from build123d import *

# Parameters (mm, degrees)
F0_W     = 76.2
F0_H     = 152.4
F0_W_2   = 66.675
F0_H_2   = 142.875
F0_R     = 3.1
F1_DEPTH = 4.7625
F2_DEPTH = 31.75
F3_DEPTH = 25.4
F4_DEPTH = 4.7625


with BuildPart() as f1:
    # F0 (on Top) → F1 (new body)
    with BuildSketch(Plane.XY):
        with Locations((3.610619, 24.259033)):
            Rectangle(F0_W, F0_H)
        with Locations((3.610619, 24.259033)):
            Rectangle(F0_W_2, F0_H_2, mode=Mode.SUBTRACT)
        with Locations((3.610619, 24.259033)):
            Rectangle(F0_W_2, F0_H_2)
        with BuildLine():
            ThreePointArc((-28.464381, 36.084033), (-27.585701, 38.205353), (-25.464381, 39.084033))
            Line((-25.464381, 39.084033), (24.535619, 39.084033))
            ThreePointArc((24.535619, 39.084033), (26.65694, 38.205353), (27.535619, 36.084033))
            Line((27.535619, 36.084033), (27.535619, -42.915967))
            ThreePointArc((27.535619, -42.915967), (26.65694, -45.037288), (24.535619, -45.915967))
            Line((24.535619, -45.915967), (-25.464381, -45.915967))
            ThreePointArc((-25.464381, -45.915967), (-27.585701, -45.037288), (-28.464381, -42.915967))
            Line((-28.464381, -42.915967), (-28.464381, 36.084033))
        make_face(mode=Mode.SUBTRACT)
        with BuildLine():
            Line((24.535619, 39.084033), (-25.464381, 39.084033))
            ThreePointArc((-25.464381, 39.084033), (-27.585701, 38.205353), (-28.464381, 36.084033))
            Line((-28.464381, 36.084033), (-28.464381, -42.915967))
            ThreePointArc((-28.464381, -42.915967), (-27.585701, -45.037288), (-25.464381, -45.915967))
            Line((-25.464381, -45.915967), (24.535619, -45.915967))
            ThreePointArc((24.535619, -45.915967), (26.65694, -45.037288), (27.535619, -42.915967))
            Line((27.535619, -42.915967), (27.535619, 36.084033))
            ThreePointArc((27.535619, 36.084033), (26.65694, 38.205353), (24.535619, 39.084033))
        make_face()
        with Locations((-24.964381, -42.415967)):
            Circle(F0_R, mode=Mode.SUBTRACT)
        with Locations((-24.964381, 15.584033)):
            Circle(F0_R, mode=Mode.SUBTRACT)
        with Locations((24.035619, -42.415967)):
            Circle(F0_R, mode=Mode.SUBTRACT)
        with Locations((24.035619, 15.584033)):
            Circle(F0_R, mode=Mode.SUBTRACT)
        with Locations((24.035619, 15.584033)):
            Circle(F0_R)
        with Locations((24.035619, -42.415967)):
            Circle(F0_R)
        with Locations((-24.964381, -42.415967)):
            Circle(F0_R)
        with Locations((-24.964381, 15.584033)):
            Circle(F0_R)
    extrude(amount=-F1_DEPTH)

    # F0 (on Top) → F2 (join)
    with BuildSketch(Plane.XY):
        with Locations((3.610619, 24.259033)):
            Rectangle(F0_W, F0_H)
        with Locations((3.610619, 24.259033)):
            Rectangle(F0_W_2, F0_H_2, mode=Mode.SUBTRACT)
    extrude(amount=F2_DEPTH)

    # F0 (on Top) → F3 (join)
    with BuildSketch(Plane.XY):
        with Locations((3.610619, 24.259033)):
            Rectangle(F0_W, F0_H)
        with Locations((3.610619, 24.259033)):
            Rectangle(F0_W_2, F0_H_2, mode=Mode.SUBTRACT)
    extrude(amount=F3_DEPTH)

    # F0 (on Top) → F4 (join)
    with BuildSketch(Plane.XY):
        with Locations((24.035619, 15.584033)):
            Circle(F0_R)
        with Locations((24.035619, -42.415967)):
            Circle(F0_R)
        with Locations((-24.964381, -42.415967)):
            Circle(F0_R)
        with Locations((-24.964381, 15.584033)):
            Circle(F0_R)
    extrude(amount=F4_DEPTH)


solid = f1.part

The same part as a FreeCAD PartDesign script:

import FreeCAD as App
import Part
import Sketcher
from FreeCAD import Vector
Q = App.Units.Quantity


def add_polygon(sketch, points):
    """Adds a closed chain of lines whose ends are joined by coincident constraints."""
    first, n = sketch.GeometryCount, len(points)
    for a, b in zip(points, points[1:] + points[:1]):
        sketch.addGeometry(Part.LineSegment(App.Vector(*a, 0), App.Vector(*b, 0)), False)
    for i in range(n):
        sketch.addConstraint(Sketcher.Constraint("Coincident", first + i, 2, first + (i + 1) % n, 1))

doc = App.newDocument("Part")
body = doc.addObject("PartDesign::Body", "Body")

# Sketch on XY plane
sketch1 = doc.addObject("Sketcher::SketchObject", "Sketch")
body.addObject(sketch1)
sketch1.AttachmentSupport = (doc.XY_Plane, [""])
sketch1.MapMode = "FlatFace"
add_polygon(sketch1, [(-34, 100), (-34, -52), (42, -52), (42, 100)])  # lines 0-3
sketch1.addConstraint(Sketcher.Constraint("Vertical", 0))
sketch1.addConstraint(Sketcher.Constraint("Horizontal", 1))
sketch1.addConstraint(Sketcher.Constraint("Vertical", 2))
sketch1.addConstraint(Sketcher.Constraint("Horizontal", 3))
sketch1.addConstraint(Sketcher.Constraint("DistanceX", 1, 1, 1, 2, Q("3 in")))
sketch1.addConstraint(Sketcher.Constraint("DistanceY", 0, 2, 0, 1, Q("6 in")))
sketch1.addConstraint(Sketcher.Constraint("DistanceX", 0, 2, -1, 1, 34.489381))
sketch1.addConstraint(Sketcher.Constraint("DistanceY", 0, 2, -1, 1, 51.940967))
pad1 = doc.addObject("PartDesign::Pad", "Pad")
body.addObject(pad1)
pad1.Profile = sketch1
pad1.Length = Q("0.1875 in")
pad1.Reversed = True

# Sketch on XY plane
sketch2 = doc.addObject("Sketcher::SketchObject", "Sketch001")
body.addObject(sketch2)
sketch2.AttachmentSupport = (doc.XY_Plane, [""])
sketch2.MapMode = "FlatFace"
add_polygon(sketch2, [(-34, 100), (-34, -52), (42, -52), (42, 100)])  # lines 0-3
add_polygon(sketch2, [(37, -47), (-30, -47), (-30, 96), (37, 96)])  # lines 4-7
sketch2.addConstraint(Sketcher.Constraint("Vertical", 0))
sketch2.addConstraint(Sketcher.Constraint("Horizontal", 1))
sketch2.addConstraint(Sketcher.Constraint("Vertical", 2))
sketch2.addConstraint(Sketcher.Constraint("Horizontal", 3))
sketch2.addConstraint(Sketcher.Constraint("Horizontal", 4))
sketch2.addConstraint(Sketcher.Constraint("Vertical", 5))
sketch2.addConstraint(Sketcher.Constraint("Horizontal", 6))
sketch2.addConstraint(Sketcher.Constraint("Vertical", 7))
sketch2.addConstraint(Sketcher.Constraint("DistanceX", 1, 1, 1, 2, Q("3 in")))
sketch2.addConstraint(Sketcher.Constraint("DistanceY", 0, 2, 0, 1, Q("6 in")))
sketch2.addConstraint(Sketcher.Constraint("DistanceX", 4, 2, 4, 1, Q("2.625 in")))
sketch2.addConstraint(Sketcher.Constraint("DistanceY", 5, 1, 5, 2, Q("5.625 in")))
sketch2.addConstraint(Sketcher.Constraint("DistanceX", 0, 2, 4, 2, Q("0.1875 in")))
sketch2.addConstraint(Sketcher.Constraint("DistanceY", 0, 2, 4, 2, Q("0.1875 in")))
sketch2.addConstraint(Sketcher.Constraint("DistanceX", 0, 2, -1, 1, 34.489381))
sketch2.addConstraint(Sketcher.Constraint("DistanceY", 0, 2, -1, 1, 51.940967))
pad2 = doc.addObject("PartDesign::Pad", "Pad001")
body.addObject(pad2)
pad2.Profile = sketch2
pad2.Length = Q("1.25 in")

# Sketch on XY plane
sketch3 = doc.addObject("Sketcher::SketchObject", "Sketch002")
body.addObject(sketch3)
sketch3.AttachmentSupport = (doc.XY_Plane, [""])
sketch3.MapMode = "FlatFace"
add_polygon(sketch3, [(-34, 100), (-34, -52), (42, -52), (42, 100)])  # lines 0-3
add_polygon(sketch3, [(37, -47), (-30, -47), (-30, 96), (37, 96)])  # lines 4-7
sketch3.addConstraint(Sketcher.Constraint("Vertical", 0))
sketch3.addConstraint(Sketcher.Constraint("Horizontal", 1))
sketch3.addConstraint(Sketcher.Constraint("Vertical", 2))
sketch3.addConstraint(Sketcher.Constraint("Horizontal", 3))
sketch3.addConstraint(Sketcher.Constraint("Horizontal", 4))
sketch3.addConstraint(Sketcher.Constraint("Vertical", 5))
sketch3.addConstraint(Sketcher.Constraint("Horizontal", 6))
sketch3.addConstraint(Sketcher.Constraint("Vertical", 7))
sketch3.addConstraint(Sketcher.Constraint("DistanceX", 1, 1, 1, 2, Q("3 in")))
sketch3.addConstraint(Sketcher.Constraint("DistanceY", 0, 2, 0, 1, Q("6 in")))
sketch3.addConstraint(Sketcher.Constraint("DistanceX", 4, 2, 4, 1, Q("2.625 in")))
sketch3.addConstraint(Sketcher.Constraint("DistanceY", 5, 1, 5, 2, Q("5.625 in")))
sketch3.addConstraint(Sketcher.Constraint("DistanceX", 0, 2, 4, 2, Q("0.1875 in")))
sketch3.addConstraint(Sketcher.Constraint("DistanceY", 0, 2, 4, 2, Q("0.1875 in")))
sketch3.addConstraint(Sketcher.Constraint("DistanceX", 0, 2, -1, 1, 34.489381))
sketch3.addConstraint(Sketcher.Constraint("DistanceY", 0, 2, -1, 1, 51.940967))
pad3 = doc.addObject("PartDesign::Pad", "Pad002")
body.addObject(pad3)
pad3.Profile = sketch3
pad3.Length = Q("1 in")

# Sketch on XY plane
sketch4 = doc.addObject("Sketcher::SketchObject", "Sketch003")
body.addObject(sketch4)
sketch4.AttachmentSupport = (doc.XY_Plane, [""])
sketch4.MapMode = "FlatFace"
sketch4.addGeometry(Part.Circle(Vector(24, 15.6, 0), Vector(0, 0, 1), 3.1), False)
sketch4.addGeometry(Part.Circle(Vector(24, -42.4, 0), Vector(0, 0, 1), 3.1), False)
sketch4.addGeometry(Part.Circle(Vector(-25, -42.4, 0), Vector(0, 0, 1), 3.1), False)
sketch4.addGeometry(Part.Circle(Vector(-25, 15.6, 0), Vector(0, 0, 1), 3.1), False)
sketch4.addConstraint(Sketcher.Constraint("Equal", 0, 1))
sketch4.addConstraint(Sketcher.Constraint("Equal", 1, 2))
sketch4.addConstraint(Sketcher.Constraint("Equal", 2, 3))
sketch4.addConstraint(Sketcher.Constraint("Horizontal", 1, 3, 2, 3))
sketch4.addConstraint(Sketcher.Constraint("Horizontal", 0, 3, 3, 3))
sketch4.addConstraint(Sketcher.Constraint("Vertical", 0, 3, 1, 3))
sketch4.addConstraint(Sketcher.Constraint("Vertical", 2, 3, 3, 3))
sketch4.addConstraint(Sketcher.Constraint("Diameter", 0, 6.2))
sketch4.addConstraint(Sketcher.Constraint("DistanceY", 1, 3, 0, 3, 58.0))
sketch4.addConstraint(Sketcher.Constraint("DistanceX", 2, 3, 1, 3, 49.0))
sketch4.addConstraint(Sketcher.Constraint("DistanceX", -1, 1, 0, 3, 24.035619))
sketch4.addConstraint(Sketcher.Constraint("DistanceY", -1, 1, 0, 3, 15.584033))
pad4 = doc.addObject("PartDesign::Pad", "Pad003")
body.addObject(pad4)
pad4.Profile = sketch4
pad4.Length = Q("0.1875 in")

doc.recompute()
